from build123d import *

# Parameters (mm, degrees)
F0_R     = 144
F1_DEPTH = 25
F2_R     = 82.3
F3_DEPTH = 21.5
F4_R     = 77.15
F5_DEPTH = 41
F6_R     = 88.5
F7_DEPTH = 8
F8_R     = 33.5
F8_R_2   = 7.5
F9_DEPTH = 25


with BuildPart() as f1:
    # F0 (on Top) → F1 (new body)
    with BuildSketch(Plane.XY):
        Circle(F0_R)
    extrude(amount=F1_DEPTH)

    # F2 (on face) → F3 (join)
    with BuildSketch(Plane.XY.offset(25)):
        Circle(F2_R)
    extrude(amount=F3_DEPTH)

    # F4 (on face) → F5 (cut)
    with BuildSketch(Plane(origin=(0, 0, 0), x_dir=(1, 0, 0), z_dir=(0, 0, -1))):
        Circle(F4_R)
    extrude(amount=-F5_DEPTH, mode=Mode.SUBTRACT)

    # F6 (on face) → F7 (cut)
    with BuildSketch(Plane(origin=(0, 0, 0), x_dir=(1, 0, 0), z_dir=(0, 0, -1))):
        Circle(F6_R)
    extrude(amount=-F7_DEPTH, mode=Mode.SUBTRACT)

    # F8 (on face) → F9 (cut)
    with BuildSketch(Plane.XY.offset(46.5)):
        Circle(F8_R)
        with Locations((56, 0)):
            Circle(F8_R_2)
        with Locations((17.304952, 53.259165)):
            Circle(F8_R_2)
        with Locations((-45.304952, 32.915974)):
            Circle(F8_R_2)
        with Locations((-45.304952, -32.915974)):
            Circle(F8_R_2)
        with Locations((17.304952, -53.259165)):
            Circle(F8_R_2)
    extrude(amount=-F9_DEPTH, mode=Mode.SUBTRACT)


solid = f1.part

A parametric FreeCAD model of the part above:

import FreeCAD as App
import Part
import Sketcher
Q = App.Units.Quantity

doc = App.newDocument("Part")
body = doc.addObject("PartDesign::Body", "Body")

sketch1 = body.newObject("Sketcher::SketchObject", "Sketch")
sketch1.AttachmentSupport = (doc.getObject("XY_Plane"), [""])
sketch1.MapMode = "FlatFace"
sketch1.addGeometry(Part.Circle(App.Vector(0, 0, 0), App.Vector(0, 0, 1), 144), False)
sketch1.addConstraint(Sketcher.Constraint("Coincident", 0, 3, -1, 1))
sketch1.addConstraint(Sketcher.Constraint("Diameter", 0, Q("288 mm")))
pad1 = body.newObject("PartDesign::Pad", "Pad")
pad1.Profile = sketch1
pad1.Length = 25

sketch2 = body.newObject("Sketcher::SketchObject", "Sketch001")
sketch2.AttachmentSupport = (doc.getObject("XY_Plane"), [""])
sketch2.MapMode = "FlatFace"
sketch2.AttachmentOffset = App.Placement(App.Vector(0, 0, 25), App.Rotation())
sketch2.addGeometry(Part.Circle(App.Vector(0, 0, 0), App.Vector(0, 0, 1), 82.3), False)
sketch2.addConstraint(Sketcher.Constraint("Coincident", 0, 3, -1, 1))
sketch2.addConstraint(Sketcher.Constraint("Diameter", 0, Q("164.6 mm")))
pad2 = body.newObject("PartDesign::Pad", "Pad001")
pad2.Profile = sketch2
pad2.Length = 21.5

sketch3 = body.newObject("Sketcher::SketchObject", "Sketch002")
sketch3.AttachmentSupport = (doc.getObject("XY_Plane"), [""])
sketch3.MapMode = "FlatFace"
sketch3.addGeometry(Part.Circle(App.Vector(0, 0, 0), App.Vector(0, 0, 1), 77.15), False)
sketch3.addConstraint(Sketcher.Constraint("Coincident", 0, 3, -1, 1))
sketch3.addConstraint(Sketcher.Constraint("Diameter", 0, Q("154.3 mm")))
pocket1 = body.newObject("PartDesign::Pocket", "Pocket")
pocket1.Profile = sketch3
pocket1.Length = 41
pocket1.Reversed = True

sketch4 = body.newObject("Sketcher::SketchObject", "Sketch003")
sketch4.AttachmentSupport = (doc.getObject("XY_Plane"), [""])
sketch4.MapMode = "FlatFace"
sketch4.addGeometry(Part.Circle(App.Vector(0, 0, 0), App.Vector(0, 0, 1), 88.5), False)
sketch4.addConstraint(Sketcher.Constraint("Coincident", 0, 3, -1, 1))
sketch4.addConstraint(Sketcher.Constraint("Diameter", 0, Q("177 mm")))
pocket2 = body.newObject("PartDesign::Pocket", "Pocket001")
pocket2.Profile = sketch4
pocket2.Length = 8
pocket2.Reversed = True

sketch5 = body.newObject("Sketcher::SketchObject", "Sketch004")
sketch5.AttachmentSupport = (doc.getObject("XY_Plane"), [""])
sketch5.MapMode = "FlatFace"
sketch5.AttachmentOffset = App.Placement(App.Vector(0, 0, 46.5), App.Rotation())
sketch5.addGeometry(Part.Circle(App.Vector(0, 0, 0), App.Vector(0, 0, 1), 33.5), False)
sketch5.addGeometry(Part.Circle(App.Vector(56, 0, 0), App.Vector(0, 0, 1), 7.5), False)
sketch5.addGeometry(Part.Circle(App.Vector(17.304952, 53.259165, 0), App.Vector(0, 0, 1), 7.5), False)
sketch5.addGeometry(Part.Circle(App.Vector(-45.304952, 32.915974, 0), App.Vector(0, 0, 1), 7.5), False)
sketch5.addGeometry(Part.Circle(App.Vector(-45.304952, -32.915974, 0), App.Vector(0, 0, 1), 7.5), False)
sketch5.addGeometry(Part.Circle(App.Vector(17.304952, -53.259165, 0), App.Vector(0, 0, 1), 7.5), False)
sketch5.addConstraint(Sketcher.Constraint("Coincident", 0, 3, -1, 1))
sketch5.addConstraint(Sketcher.Constraint("Equal", 1, 2))
sketch5.addConstraint(Sketcher.Constraint("Equal", 2, 3))
sketch5.addConstraint(Sketcher.Constraint("Equal", 3, 4))
sketch5.addConstraint(Sketcher.Constraint("Equal", 4, 5))
sketch5.addConstraint(Sketcher.Constraint("Symmetric", 3, 3, 4, 3, -1))
sketch5.addConstraint(Sketcher.Constraint("Symmetric", 2, 3, 5, 3, -1))
sketch5.addConstraint(Sketcher.Constraint("PointOnObject", 1, 3, -1))
sketch5.addConstraint(Sketcher.Constraint("Diameter", 0, Q("67 mm")))
sketch5.addConstraint(Sketcher.Constraint("Diameter", 1, Q("15 mm")))
sketch5.addConstraint(Sketcher.Constraint("DistanceX", -1, 1, 1, 3, Q("56 mm")))
sketch5.addConstraint(Sketcher.Constraint("DistanceX", -1, 1, 2, 3, Q("17.304952 mm")))
sketch5.addConstraint(Sketcher.Constraint("DistanceY", 3, 3, 2, 3, Q("20.343191 mm")))
sketch5.addConstraint(Sketcher.Constraint("DistanceX", 3, 3, 1, 3, Q("101.304952 mm")))
sketch5.addConstraint(Sketcher.Constraint("DistanceY", 4, 3, 2, 3, Q("86.175139 mm")))
pocket3 = body.newObject("PartDesign::Pocket", "Pocket002")
pocket3.Profile = sketch5
pocket3.Length = 25

doc.recompute()
